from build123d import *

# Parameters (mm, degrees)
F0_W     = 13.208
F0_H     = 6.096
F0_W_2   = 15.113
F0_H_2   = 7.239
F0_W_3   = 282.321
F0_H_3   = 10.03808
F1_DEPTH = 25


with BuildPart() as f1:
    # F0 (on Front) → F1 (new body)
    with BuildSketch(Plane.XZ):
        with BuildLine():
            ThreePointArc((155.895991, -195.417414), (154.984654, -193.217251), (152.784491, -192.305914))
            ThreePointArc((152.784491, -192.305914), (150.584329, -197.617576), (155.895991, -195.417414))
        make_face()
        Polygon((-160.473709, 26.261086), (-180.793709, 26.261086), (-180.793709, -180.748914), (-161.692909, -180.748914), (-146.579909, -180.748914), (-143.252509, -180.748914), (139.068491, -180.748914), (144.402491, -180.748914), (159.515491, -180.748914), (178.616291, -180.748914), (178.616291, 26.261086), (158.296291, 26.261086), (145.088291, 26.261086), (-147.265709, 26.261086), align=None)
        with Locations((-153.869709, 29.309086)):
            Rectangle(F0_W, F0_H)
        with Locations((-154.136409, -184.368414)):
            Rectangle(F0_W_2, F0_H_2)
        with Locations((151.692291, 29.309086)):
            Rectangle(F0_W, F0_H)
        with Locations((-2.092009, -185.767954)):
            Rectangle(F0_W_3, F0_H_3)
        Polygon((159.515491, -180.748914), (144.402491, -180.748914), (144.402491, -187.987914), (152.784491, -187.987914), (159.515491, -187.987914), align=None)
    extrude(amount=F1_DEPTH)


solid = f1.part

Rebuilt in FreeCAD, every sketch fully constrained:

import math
import FreeCAD as App
import Part
import Sketcher
Q = App.Units.Quantity


def add_polygon(sketch, points):
    """Adds a closed chain of lines whose ends are joined by coincident constraints."""
    first, n = sketch.GeometryCount, len(points)
    for a, b in zip(points, points[1:] + points[:1]):
        sketch.addGeometry(Part.LineSegment(App.Vector(*a, 0), App.Vector(*b, 0)), False)
    for i in range(n):
        sketch.addConstraint(Sketcher.Constraint("Coincident", first + i, 2, first + (i + 1) % n, 1))

doc = App.newDocument("Part")
body = doc.addObject("PartDesign::Body", "Body")
body.AllowCompound = True

# Sketch on XZ plane
sketch1 = body.newObject("Sketcher::SketchObject", "Sketch")
sketch1.AttachmentSupport = (doc.getObject("XZ_Plane"), [""])
sketch1.MapMode = "FlatFace"
sketch1.addGeometry(Part.ArcOfCircle(Part.Circle(App.Vector(152.8, -195.4, 0), App.Vector(0, 0, 1), 3.1), math.radians(0), math.radians(90)), False)  # 0
sketch1.addGeometry(Part.ArcOfCircle(Part.Circle(App.Vector(152.8, -195.4, 0), App.Vector(0, 0, 1), 3.1), math.radians(90), math.radians(360)), False)  # 1
add_polygon(sketch1, [(-180.8, 26.3), (-180.8, -180.7), (-161.7, -180.7), (-161.7, -188), (-146.6, -188), (-146.6, -180.7), (-143.3, -180.7), (-143.3, -190.8), (139.1, -190.8), (139.1, -180.7), (144.4, -180.7), (144.4, -188), (159.5, -188), (159.5, -180.7), (178.6, -180.7), (178.6, 26.3), (158.3, 26.3), (158.3, 32.4), (145.1, 32.4), (145.1, 26.3), (-147.3, 26.3), (-147.3, 32.4), (-160.5, 32.4), (-160.5, 26.3)])  # lines 2-25
sketch1.addConstraint(Sketcher.Constraint("Tangent", 0, 1, 1, 2))
sketch1.addConstraint(Sketcher.Constraint("Coincident", 1, 1, 0, 2))
sketch1.addConstraint(Sketcher.Constraint("Vertical", 2))
sketch1.addConstraint(Sketcher.Constraint("Horizontal", 3))
sketch1.addConstraint(Sketcher.Constraint("Vertical", 4))
sketch1.addConstraint(Sketcher.Constraint("Horizontal", 5))
sketch1.addConstraint(Sketcher.Constraint("Vertical", 6))
sketch1.addConstraint(Sketcher.Constraint("Horizontal", 7))
sketch1.addConstraint(Sketcher.Constraint("Vertical", 8))
sketch1.addConstraint(Sketcher.Constraint("Horizontal", 9))
sketch1.addConstraint(Sketcher.Constraint("Vertical", 10))
sketch1.addConstraint(Sketcher.Constraint("Horizontal", 11))
sketch1.addConstraint(Sketcher.Constraint("Vertical", 12))
sketch1.addConstraint(Sketcher.Constraint("Horizontal", 13))
sketch1.addConstraint(Sketcher.Constraint("Vertical", 14))
sketch1.addConstraint(Sketcher.Constraint("Horizontal", 15))
sketch1.addConstraint(Sketcher.Constraint("Vertical", 16))
sketch1.addConstraint(Sketcher.Constraint("Horizontal", 17))
sketch1.addConstraint(Sketcher.Constraint("Vertical", 18))
sketch1.addConstraint(Sketcher.Constraint("Horizontal", 19))
sketch1.addConstraint(Sketcher.Constraint("Vertical", 20))
sketch1.addConstraint(Sketcher.Constraint("Horizontal", 21))
sketch1.addConstraint(Sketcher.Constraint("Vertical", 22))
sketch1.addConstraint(Sketcher.Constraint("Horizontal", 23))
sketch1.addConstraint(Sketcher.Constraint("Vertical", 24))
sketch1.addConstraint(Sketcher.Constraint("Horizontal", 25))
sketch1.addConstraint(Sketcher.Constraint("Horizontal", 1, 3, 0, 1))
sketch1.addConstraint(Sketcher.Constraint("Horizontal", 3, 2, 6, 2))
sketch1.addConstraint(Sketcher.Constraint("Horizontal", 7, 2, 10, 2))
sketch1.addConstraint(Sketcher.Constraint("Horizontal", 5, 2, 12, 2))
sketch1.addConstraint(Sketcher.Constraint("Horizontal", 11, 2, 14, 2))
sketch1.addConstraint(Sketcher.Constraint("Horizontal", 17, 2, 20, 2))
sketch1.addConstraint(Sketcher.Constraint("Horizontal", 19, 2, 22, 2))
sketch1.addConstraint(Sketcher.Constraint("Horizontal", 21, 2, 24, 2))
sketch1.addConstraint(Sketcher.Constraint("Vertical", 0, 3, 1, 1))
sketch1.addConstraint(Sketcher.Constraint("Equal", 5, 13))
sketch1.addConstraint(Sketcher.Constraint("Equal", 3, 15))
sketch1.addConstraint(Sketcher.Constraint("Equal", 19, 23))
sketch1.addConstraint(Sketcher.Constraint("Equal", 17, 25))
sketch1.addConstraint(Sketcher.Constraint("DistanceX", 17, 2, 17, 1, Q("0.8 in")))
sketch1.addConstraint(Sketcher.Constraint("DistanceX", 11, 1, 11, 2, Q("0.21 in")))
sketch1.addConstraint(Sketcher.Constraint("DistanceX", 19, 2, 19, 1, Q("0.52 in")))
sketch1.addConstraint(Sketcher.Constraint("DistanceX", 21, 2, 21, 1, Q("11.51 in")))
sketch1.addConstraint(Sketcher.Constraint("DistanceY", 2, 2, 2, 1, Q("8.15 in")))
sketch1.addConstraint(Sketcher.Constraint("DistanceY", 18, 1, 18, 2, Q("0.24 in")))
sketch1.addConstraint(Sketcher.Constraint("Radius", 0, Q("0.1225 in")))
sketch1.addConstraint(Sketcher.Constraint("DistanceX", 3, 1, 3, 2, Q("0.752 in")))
sketch1.addConstraint(Sketcher.Constraint("DistanceX", 5, 1, 5, 2, Q("0.595 in")))
sketch1.addConstraint(Sketcher.Constraint("DistanceX", 7, 1, 7, 2, Q("0.131 in")))
sketch1.addConstraint(Sketcher.Constraint("DistanceY", 4, 2, 4, 1, Q("0.285 in")))
sketch1.addConstraint(Sketcher.Constraint("DistanceY", 1, 1, 4, 2, Q("0.17 in")))
sketch1.addConstraint(Sketcher.Constraint("DistanceX", 9, 2, 1, 1, Q("0.54 in")))
sketch1.addConstraint(Sketcher.Constraint("DistanceY", 8, 2, 8, 1, Q("0.3952 in")))
sketch1.addConstraint(Sketcher.Constraint("DistanceX", -1, 1, 0, 3, Q("152.784492 mm")))
sketch1.addConstraint(Sketcher.Constraint("DistanceY", 0, 3, -1, 1, Q("195.417413 mm")))
pad1 = body.newObject("PartDesign::Pad", "Pad")
pad1.Profile = sketch1
pad1.Length = 25

doc.recompute()
